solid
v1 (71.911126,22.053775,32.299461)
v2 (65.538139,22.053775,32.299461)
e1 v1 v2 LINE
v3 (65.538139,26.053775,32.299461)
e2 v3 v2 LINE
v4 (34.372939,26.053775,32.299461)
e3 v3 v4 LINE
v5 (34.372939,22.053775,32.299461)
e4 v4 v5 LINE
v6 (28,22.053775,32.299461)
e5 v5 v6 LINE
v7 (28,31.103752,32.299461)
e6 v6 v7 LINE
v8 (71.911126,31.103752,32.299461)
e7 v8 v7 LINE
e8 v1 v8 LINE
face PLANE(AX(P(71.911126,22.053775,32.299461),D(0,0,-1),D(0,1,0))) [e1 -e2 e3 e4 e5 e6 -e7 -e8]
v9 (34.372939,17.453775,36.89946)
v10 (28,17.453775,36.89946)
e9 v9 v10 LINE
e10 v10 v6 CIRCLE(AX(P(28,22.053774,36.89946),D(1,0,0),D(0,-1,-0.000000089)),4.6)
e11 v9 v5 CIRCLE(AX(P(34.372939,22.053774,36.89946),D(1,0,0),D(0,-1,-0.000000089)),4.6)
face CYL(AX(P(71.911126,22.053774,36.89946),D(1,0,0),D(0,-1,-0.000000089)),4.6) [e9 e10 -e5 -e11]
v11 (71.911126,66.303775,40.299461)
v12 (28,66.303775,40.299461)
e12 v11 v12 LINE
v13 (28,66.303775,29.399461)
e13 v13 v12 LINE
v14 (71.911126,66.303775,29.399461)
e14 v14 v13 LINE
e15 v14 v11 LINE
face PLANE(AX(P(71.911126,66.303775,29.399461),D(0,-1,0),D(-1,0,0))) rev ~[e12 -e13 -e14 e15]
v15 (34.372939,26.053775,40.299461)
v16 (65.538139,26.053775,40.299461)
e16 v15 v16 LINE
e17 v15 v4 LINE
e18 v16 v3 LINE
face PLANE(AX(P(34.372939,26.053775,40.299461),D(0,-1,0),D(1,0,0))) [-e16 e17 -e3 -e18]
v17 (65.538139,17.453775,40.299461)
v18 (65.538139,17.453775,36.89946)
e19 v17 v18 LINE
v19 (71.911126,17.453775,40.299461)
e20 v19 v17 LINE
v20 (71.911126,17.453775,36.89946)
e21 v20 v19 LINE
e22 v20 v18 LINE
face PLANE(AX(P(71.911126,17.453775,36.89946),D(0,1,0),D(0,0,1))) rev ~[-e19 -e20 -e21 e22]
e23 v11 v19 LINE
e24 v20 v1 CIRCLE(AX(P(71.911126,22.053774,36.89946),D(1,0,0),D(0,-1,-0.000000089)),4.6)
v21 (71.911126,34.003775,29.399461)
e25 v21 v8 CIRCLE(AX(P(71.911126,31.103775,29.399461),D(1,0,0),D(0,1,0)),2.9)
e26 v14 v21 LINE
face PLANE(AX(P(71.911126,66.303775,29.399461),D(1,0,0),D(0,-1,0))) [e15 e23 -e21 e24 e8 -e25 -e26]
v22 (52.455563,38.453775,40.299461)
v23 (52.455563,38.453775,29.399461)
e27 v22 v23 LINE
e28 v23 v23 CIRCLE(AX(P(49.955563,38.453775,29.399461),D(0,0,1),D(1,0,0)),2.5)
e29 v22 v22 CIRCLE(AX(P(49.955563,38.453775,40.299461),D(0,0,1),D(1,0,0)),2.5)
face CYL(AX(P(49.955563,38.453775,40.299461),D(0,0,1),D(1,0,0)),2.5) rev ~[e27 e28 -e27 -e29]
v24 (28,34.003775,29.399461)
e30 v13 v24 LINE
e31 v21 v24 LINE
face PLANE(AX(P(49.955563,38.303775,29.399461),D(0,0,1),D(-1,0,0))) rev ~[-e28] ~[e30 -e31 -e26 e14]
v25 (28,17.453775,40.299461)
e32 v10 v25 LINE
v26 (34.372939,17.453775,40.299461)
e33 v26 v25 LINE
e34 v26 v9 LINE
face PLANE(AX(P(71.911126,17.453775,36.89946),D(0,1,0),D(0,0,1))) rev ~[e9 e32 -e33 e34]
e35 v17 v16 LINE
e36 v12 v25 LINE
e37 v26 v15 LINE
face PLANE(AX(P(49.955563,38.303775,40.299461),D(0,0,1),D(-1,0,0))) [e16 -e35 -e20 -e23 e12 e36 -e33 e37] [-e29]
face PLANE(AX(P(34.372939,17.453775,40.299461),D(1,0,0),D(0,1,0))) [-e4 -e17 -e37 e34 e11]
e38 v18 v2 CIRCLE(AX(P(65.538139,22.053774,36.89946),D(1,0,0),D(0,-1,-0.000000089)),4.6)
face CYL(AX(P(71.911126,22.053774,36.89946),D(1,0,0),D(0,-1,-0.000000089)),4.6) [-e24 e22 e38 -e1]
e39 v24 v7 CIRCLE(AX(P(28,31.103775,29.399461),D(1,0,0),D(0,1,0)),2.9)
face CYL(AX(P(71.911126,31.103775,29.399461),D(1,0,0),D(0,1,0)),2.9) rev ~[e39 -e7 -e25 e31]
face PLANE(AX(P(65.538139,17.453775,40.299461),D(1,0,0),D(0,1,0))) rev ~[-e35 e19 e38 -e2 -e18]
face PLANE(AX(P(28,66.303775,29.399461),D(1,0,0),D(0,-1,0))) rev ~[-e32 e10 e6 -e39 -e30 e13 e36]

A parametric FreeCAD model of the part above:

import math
import FreeCAD as App
import Part
import Sketcher
from FreeCAD import Vector


def add_polygon(sketch, points):
    """Adds a closed chain of lines whose ends are joined by coincident constraints."""
    first, n = sketch.GeometryCount, len(points)
    for a, b in zip(points, points[1:] + points[:1]):
        sketch.addGeometry(Part.LineSegment(App.Vector(*a, 0), App.Vector(*b, 0)), False)
    for i in range(n):
        sketch.addConstraint(Sketcher.Constraint("Coincident", first + i, 2, first + (i + 1) % n, 1))

doc = App.newDocument("Part")
body = doc.addObject("PartDesign::Body", "Body")

# Sketch on XY plane
sketch1 = doc.addObject("Sketcher::SketchObject", "Sketch")
body.addObject(sketch1)
sketch1.AttachmentSupport = (doc.XY_Plane, [""])
sketch1.MapMode = "FlatFace"
sketch1.AttachmentOffset = App.Placement(Vector(0, 0, 29.399461), App.Rotation())
add_polygon(sketch1, [(71.911126, 10.303775), (71.911126, 66.303775), (28, 66.303775), (28, 10.303775)])  # lines 0-3
sketch1.addConstraint([
    Sketcher.Constraint("Vertical", 0),
    Sketcher.Constraint("Horizontal", 1),
    Sketcher.Constraint("Vertical", 2),
    Sketcher.Constraint("Horizontal", 3),
    Sketcher.Constraint("DistanceY", 0, 1, 0, 2, 56.0),
    Sketcher.Constraint("DistanceX", -1, 1, 1, 2, 28.0),
    Sketcher.Constraint("DistanceX", 1, 2, 1, 1, 43.911126),
    Sketcher.Constraint("DistanceY", -1, 1, 0, 2, 66.303775),
])
pad1 = doc.addObject("PartDesign::Pad", "Pad")
body.addObject(pad1)
pad1.Profile = sketch1
pad1.Length = 10.9

# Sketch on YZ plane
sketch2 = doc.addObject("Sketcher::SketchObject", "Sketch001")
body.addObject(sketch2)
sketch2.AttachmentSupport = (doc.YZ_Plane, [""])
sketch2.MapMode = "FlatFace"
sketch2.AttachmentOffset = App.Placement(Vector(0, 0, 71.911126), App.Rotation())
sketch2.addGeometry([
    Part.LineSegment(Vector(10.303775, 29.399461, 0), Vector(34.003775, 29.399461, 0)),  # 0
    Part.ArcOfCircle(Part.Circle(Vector(31.103775, 29.399461, 0), Vector(0, 0, 1), 2.9), math.radians(0), math.radians(90.00044)),  # 1
    Part.LineSegment(Vector(31.103752, 32.299461, 0), Vector(22.053775, 32.299461, 0)),  # 2
    Part.ArcOfCircle(Part.Circle(Vector(22.053774, 36.89946, 0), Vector(0, 0, 1), 4.6), math.radians(-179.999995), math.radians(-89.999998)),  # 3
    Part.LineSegment(Vector(17.453775, 36.89946, 0), Vector(17.453775, 40.299461, 0)),  # 4
    Part.LineSegment(Vector(17.453775, 40.299461, 0), Vector(10.303775, 40.299461, 0)),  # 5
    Part.LineSegment(Vector(10.303775, 40.299461, 0), Vector(10.303775, 29.399461, 0)),  # 6
], False)
sketch2.addConstraint([
    Sketcher.Constraint("Coincident", 0, 2, 1, 1),
    Sketcher.Constraint("Coincident", 1, 2, 2, 1),
    Sketcher.Constraint("Tangent", 2, 2, 3, 2),
    Sketcher.Constraint("Tangent", 3, 1, 4, 1),
    Sketcher.Constraint("Coincident", 4, 2, 5, 1),
    Sketcher.Constraint("Coincident", 5, 2, 6, 1),
    Sketcher.Constraint("Coincident", 6, 2, 0, 1),
    Sketcher.Constraint("Horizontal", 0),
    Sketcher.Constraint("Horizontal", 2),
    Sketcher.Constraint("Vertical", 4),
    Sketcher.Constraint("Horizontal", 5),
    Sketcher.Constraint("Vertical", 6),
    Sketcher.Constraint("Horizontal", 1, 3, 0, 2),
    Sketcher.Constraint("Radius", 1, 2.9),
    Sketcher.Constraint("Radius", 3, 4.6),
    Sketcher.Constraint("DistanceX", 0, 1, 0, 2, 23.7),
    Sketcher.Constraint("DistanceY", 4, 1, 4, 2, 3.400001),
    Sketcher.Constraint("DistanceX", 5, 2, 5, 1, 7.15),
    Sketcher.Constraint("DistanceX", 2, 2, 2, 1, 9.049978),
    Sketcher.Constraint("DistanceY", -1, 1, 1, 3, 29.399461),
    Sketcher.Constraint("DistanceX", -1, 1, 1, 3, 31.103775),
])
pocket1 = doc.addObject("PartDesign::Pocket", "Pocket")
body.addObject(pocket1)
pocket1.Profile = sketch2
pocket1.Type = "ThroughAll"

# Sketch on XY plane
sketch3 = doc.addObject("Sketcher::SketchObject", "Sketch002")
body.addObject(sketch3)
sketch3.AttachmentSupport = (doc.XY_Plane, [""])
sketch3.MapMode = "FlatFace"
sketch3.AttachmentOffset = App.Placement(Vector(0, 0, 40.299461), App.Rotation())
add_polygon(sketch3, [(34.372939, 26.053775), (34.372939, 17.453775), (65.538139, 17.453775), (65.538139, 26.053775)])  # lines 0-3
sketch3.addConstraint([
    Sketcher.Constraint("Vertical", 0),
    Sketcher.Constraint("Horizontal", 1),
    Sketcher.Constraint("Vertical", 2),
    Sketcher.Constraint("Horizontal", 3),
    Sketcher.Constraint("DistanceY", 0, 2, 0, 1, 8.6),
    Sketcher.Constraint("DistanceX", 1, 1, 1, 2, 31.1652),
    Sketcher.Constraint("DistanceX", -1, 1, 0, 2, 34.372939),
    Sketcher.Constraint("DistanceY", -1, 1, 0, 2, 17.453775),
])
pocket2 = doc.addObject("PartDesign::Pocket", "Pocket001")
body.addObject(pocket2)
pocket2.Profile = sketch3
pocket2.Type = "ThroughAll"

# Sketch on XY plane
sketch4 = doc.addObject("Sketcher::SketchObject", "Sketch003")
body.addObject(sketch4)
sketch4.AttachmentSupport = (doc.XY_Plane, [""])
sketch4.MapMode = "FlatFace"
sketch4.AttachmentOffset = App.Placement(Vector(0, 0, 40.299461), App.Rotation())
sketch4.addGeometry(Part.Circle(Vector(49.955563, 38.453775, 0), Vector(0, 0, 1), 2.5), False)
sketch4.addConstraint([
    Sketcher.Constraint("Diameter", 0, 5.0),
    Sketcher.Constraint("DistanceX", -1, 1, 0, 3, 49.955563),
    Sketcher.Constraint("DistanceY", -1, 1, 0, 3, 38.453775),
])
pocket3 = doc.addObject("PartDesign::Pocket", "Pocket002")
body.addObject(pocket3)
pocket3.Profile = sketch4
pocket3.Length = 10.9

doc.recompute()
